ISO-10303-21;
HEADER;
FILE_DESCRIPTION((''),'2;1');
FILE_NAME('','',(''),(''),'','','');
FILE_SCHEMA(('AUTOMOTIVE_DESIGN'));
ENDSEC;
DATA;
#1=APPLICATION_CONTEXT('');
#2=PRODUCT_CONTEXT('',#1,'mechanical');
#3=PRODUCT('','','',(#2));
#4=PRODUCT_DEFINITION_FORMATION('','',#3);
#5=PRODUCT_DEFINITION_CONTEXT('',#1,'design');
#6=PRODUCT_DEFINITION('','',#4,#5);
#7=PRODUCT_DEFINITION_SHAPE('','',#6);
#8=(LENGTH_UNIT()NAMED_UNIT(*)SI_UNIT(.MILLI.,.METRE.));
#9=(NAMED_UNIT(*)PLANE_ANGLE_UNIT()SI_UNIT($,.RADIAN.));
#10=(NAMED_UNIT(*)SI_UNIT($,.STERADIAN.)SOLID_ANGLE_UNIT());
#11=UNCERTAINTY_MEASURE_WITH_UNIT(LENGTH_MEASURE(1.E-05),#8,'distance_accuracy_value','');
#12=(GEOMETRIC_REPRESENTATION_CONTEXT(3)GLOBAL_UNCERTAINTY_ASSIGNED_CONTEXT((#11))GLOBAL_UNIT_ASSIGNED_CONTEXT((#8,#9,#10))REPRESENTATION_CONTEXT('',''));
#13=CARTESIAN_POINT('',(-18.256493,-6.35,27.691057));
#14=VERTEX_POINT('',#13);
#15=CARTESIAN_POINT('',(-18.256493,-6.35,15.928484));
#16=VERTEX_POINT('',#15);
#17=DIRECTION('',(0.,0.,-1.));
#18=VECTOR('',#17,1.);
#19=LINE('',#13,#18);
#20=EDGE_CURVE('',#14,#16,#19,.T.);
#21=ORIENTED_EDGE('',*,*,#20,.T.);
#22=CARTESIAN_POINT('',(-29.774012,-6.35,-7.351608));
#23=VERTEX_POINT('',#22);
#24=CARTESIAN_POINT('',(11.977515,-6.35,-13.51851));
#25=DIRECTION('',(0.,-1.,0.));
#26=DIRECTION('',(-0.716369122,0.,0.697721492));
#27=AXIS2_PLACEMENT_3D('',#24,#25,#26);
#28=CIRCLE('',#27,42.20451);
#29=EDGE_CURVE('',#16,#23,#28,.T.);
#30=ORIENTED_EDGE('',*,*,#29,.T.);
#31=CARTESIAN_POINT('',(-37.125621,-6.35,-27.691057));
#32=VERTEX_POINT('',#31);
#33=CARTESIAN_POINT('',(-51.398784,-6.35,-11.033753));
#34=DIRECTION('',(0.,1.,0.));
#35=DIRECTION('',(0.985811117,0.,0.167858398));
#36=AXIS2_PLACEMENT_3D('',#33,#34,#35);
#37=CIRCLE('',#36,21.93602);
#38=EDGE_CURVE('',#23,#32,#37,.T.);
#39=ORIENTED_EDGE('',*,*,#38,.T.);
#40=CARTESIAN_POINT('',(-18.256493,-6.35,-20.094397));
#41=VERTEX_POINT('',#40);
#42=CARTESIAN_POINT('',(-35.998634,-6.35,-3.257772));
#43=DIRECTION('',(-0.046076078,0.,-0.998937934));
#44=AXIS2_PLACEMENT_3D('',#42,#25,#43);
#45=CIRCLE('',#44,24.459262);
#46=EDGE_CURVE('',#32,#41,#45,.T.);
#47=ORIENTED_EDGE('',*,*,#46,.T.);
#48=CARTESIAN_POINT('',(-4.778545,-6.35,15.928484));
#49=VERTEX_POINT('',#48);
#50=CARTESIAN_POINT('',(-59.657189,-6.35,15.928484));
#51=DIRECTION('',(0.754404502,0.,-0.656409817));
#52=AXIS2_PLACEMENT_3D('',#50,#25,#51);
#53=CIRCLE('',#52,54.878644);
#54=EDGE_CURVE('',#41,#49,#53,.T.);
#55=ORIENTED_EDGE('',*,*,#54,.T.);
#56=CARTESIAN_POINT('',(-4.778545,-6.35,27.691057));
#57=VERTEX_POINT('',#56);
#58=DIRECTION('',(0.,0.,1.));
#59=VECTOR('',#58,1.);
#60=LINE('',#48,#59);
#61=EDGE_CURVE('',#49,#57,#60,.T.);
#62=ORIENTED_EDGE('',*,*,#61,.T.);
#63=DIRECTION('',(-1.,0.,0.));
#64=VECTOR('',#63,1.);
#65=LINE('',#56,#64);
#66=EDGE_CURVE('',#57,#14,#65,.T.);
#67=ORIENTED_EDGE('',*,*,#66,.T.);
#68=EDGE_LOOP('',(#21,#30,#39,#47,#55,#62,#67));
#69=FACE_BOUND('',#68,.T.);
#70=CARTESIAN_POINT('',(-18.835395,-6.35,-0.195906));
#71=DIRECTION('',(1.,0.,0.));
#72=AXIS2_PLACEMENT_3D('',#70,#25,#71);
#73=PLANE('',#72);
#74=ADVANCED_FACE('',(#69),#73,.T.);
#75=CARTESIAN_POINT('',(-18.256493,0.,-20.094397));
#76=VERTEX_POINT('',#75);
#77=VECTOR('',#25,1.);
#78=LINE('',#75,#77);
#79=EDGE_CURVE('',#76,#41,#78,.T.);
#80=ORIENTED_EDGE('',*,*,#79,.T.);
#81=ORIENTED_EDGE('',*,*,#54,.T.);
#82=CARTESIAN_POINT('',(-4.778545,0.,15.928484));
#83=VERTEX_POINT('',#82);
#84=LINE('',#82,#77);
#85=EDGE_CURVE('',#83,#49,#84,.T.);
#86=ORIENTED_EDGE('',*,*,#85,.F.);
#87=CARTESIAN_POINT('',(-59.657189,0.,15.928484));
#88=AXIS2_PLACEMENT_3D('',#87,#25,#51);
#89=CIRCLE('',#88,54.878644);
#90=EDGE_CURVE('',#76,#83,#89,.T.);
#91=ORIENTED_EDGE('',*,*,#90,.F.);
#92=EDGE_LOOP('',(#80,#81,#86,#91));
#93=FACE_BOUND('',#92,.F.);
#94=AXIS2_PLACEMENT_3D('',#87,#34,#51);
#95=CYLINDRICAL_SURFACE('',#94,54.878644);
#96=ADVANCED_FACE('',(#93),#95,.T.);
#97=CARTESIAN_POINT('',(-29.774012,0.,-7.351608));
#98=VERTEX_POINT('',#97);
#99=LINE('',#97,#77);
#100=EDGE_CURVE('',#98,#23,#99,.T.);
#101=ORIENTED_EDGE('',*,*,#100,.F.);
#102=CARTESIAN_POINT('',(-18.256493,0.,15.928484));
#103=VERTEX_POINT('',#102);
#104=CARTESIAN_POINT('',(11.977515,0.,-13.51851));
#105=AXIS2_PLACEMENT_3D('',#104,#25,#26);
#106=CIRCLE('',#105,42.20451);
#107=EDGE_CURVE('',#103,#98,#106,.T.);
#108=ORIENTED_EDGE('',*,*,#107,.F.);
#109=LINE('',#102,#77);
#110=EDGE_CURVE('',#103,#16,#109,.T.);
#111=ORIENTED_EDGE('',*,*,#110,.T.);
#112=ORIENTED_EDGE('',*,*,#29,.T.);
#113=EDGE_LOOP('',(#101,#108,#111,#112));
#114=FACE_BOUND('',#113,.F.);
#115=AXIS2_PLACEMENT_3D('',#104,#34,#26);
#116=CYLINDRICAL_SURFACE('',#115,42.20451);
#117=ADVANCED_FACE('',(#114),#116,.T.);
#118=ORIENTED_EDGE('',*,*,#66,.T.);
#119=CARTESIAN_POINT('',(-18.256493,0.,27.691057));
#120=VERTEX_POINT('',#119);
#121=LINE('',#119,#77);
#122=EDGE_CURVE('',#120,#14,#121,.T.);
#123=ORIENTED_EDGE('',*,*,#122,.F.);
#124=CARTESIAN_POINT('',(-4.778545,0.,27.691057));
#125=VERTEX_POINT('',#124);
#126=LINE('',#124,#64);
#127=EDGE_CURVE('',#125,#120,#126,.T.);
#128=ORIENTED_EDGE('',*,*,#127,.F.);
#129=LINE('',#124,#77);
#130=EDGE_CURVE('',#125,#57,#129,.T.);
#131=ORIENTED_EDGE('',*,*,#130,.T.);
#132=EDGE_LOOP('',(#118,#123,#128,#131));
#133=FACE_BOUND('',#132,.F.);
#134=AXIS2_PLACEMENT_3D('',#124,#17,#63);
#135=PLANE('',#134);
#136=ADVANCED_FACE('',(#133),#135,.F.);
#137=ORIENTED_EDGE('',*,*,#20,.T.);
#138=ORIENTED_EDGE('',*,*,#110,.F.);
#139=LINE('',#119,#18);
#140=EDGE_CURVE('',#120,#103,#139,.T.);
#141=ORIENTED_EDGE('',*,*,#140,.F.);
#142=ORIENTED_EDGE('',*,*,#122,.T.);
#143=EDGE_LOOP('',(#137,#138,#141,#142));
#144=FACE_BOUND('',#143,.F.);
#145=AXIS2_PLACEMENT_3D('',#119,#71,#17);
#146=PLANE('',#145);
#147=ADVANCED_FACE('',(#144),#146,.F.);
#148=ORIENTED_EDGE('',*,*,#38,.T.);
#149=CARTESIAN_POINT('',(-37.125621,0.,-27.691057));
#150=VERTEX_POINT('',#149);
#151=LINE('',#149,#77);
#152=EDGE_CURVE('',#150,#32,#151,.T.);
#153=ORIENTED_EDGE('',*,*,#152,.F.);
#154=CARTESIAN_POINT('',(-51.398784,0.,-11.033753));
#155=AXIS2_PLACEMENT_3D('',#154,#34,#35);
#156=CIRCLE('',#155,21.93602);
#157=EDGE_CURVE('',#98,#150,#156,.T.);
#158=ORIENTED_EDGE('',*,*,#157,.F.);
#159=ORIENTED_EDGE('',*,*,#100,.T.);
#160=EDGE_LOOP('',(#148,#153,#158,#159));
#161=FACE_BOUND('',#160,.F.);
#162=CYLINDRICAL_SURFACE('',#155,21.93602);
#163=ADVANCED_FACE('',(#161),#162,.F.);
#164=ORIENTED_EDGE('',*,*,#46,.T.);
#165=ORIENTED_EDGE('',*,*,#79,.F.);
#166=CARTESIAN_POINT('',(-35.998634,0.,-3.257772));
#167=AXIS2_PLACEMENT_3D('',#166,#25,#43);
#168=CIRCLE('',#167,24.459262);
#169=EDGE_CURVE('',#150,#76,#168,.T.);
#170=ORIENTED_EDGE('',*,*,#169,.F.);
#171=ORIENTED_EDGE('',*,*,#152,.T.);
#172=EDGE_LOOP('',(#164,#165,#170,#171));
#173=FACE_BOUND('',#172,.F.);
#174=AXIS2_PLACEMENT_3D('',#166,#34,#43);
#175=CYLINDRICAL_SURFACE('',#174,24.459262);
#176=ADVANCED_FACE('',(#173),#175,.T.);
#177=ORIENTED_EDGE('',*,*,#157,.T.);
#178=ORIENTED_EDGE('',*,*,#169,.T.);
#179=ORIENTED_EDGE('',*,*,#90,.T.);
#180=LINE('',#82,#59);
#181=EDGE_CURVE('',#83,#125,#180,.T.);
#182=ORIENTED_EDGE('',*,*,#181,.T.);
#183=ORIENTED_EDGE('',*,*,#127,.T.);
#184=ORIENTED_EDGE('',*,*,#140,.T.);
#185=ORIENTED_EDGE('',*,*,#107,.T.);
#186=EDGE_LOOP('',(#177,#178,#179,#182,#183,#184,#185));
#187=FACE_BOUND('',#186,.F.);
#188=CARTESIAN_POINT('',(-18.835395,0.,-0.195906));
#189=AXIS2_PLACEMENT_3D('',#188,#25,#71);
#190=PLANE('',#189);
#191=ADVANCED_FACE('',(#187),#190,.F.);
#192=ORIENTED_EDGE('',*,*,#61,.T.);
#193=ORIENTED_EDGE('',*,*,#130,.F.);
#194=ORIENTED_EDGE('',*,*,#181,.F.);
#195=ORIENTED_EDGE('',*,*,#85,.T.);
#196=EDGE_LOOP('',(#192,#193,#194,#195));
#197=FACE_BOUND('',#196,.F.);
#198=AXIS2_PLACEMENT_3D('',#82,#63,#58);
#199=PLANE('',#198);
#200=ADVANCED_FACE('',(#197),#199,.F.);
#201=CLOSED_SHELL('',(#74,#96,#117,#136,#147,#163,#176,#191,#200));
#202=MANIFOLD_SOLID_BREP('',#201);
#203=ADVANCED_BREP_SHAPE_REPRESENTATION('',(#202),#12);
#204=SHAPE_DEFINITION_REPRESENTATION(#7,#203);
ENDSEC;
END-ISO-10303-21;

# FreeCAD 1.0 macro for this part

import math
import FreeCAD as App
import Part
import Sketcher
Q = App.Units.Quantity

doc = App.newDocument("Part")
body = doc.addObject("PartDesign::Body", "Body")

sketch1 = body.newObject("Sketcher::SketchObject", "Sketch")
sketch1.AttachmentSupport = (doc.getObject("XZ_Plane"), [""])
sketch1.MapMode = "FlatFace"
sketch1.addGeometry(Part.LineSegment(App.Vector(-5, 28, 0), App.Vector(-18, 28, 0)), False)
sketch1.addGeometry(Part.LineSegment(App.Vector(-18, 28, 0), App.Vector(-18, 16, 0)), False)
sketch1.addGeometry(Part.ArcOfCircle(Part.Circle(App.Vector(12, -14, 0), App.Vector(0, 0, 1), 42), math.radians(136), math.radians(172)), False)
sketch1.addGeometry(Part.ArcOfCircle(Part.Circle(App.Vector(-51, -11, 0), App.Vector(0, 0, 1), 22), math.radians(-49), math.radians(10)), False)
sketch1.addGeometry(Part.ArcOfCircle(Part.Circle(App.Vector(-36, -3, 0), App.Vector(0, 0, 1), 24), math.radians(-93), math.radians(-43)), False)
sketch1.addGeometry(Part.ArcOfCircle(Part.Circle(App.Vector(-60, 16, 0), App.Vector(0, 0, 1), 55), math.radians(-41), math.radians(0)), False)
sketch1.addGeometry(Part.LineSegment(App.Vector(-5, 16, 0), App.Vector(-5, 28, 0)), False)
sketch1.addConstraint(Sketcher.Constraint("Coincident", 0, 2, 1, 1))
sketch1.addConstraint(Sketcher.Constraint("Coincident", 1, 2, 2, 1))
sketch1.addConstraint(Sketcher.Constraint("Coincident", 2, 2, 3, 2))
sketch1.addConstraint(Sketcher.Constraint("Coincident", 3, 1, 4, 1))
sketch1.addConstraint(Sketcher.Constraint("Coincident", 4, 2, 5, 1))
sketch1.addConstraint(Sketcher.Constraint("Tangent", 5, 2, 6, 1))
sketch1.addConstraint(Sketcher.Constraint("Coincident", 6, 2, 0, 1))
sketch1.addConstraint(Sketcher.Constraint("Horizontal", 0))
sketch1.addConstraint(Sketcher.Constraint("Vertical", 1))
sketch1.addConstraint(Sketcher.Constraint("Vertical", 6))
sketch1.addConstraint(Sketcher.Constraint("Horizontal", 5, 3, 1, 2))
sketch1.addConstraint(Sketcher.Constraint("Vertical", 1, 2, 4, 2))
sketch1.addConstraint(Sketcher.Constraint("Radius", 2, 42.20451))
sketch1.addConstraint(Sketcher.Constraint("Radius", 3, 21.93602))
sketch1.addConstraint(Sketcher.Constraint("Radius", 4, 24.459262))
sketch1.addConstraint(Sketcher.Constraint("Radius", 5, 54.878644))
sketch1.addConstraint(Sketcher.Constraint("DistanceX", 3, 3, 2, 3, 63.376299))
sketch1.addConstraint(Sketcher.Constraint("DistanceX", 0, 2, 0, 1, 13.477948))
sketch1.addConstraint(Sketcher.Constraint("DistanceY", 1, 2, 1, 1, 11.762573))
sketch1.addConstraint(Sketcher.Constraint("DistanceY", 2, 3, -1, 1, 13.51851))
sketch1.addConstraint(Sketcher.Constraint("DistanceX", 5, 3, -1, 1, 59.657189))
sketch1.addConstraint(Sketcher.Constraint("DistanceX", 2, 2, -1, 1, 29.774012))
sketch1.addConstraint(Sketcher.Constraint("DistanceY", 2, 2, -1, 1, 7.351608))
sketch1.addConstraint(Sketcher.Constraint("DistanceX", 3, 1, -1, 1, 37.125621))
pad1 = body.newObject("PartDesign::Pad", "Pad")
pad1.Profile = sketch1
pad1.Length = Q("0.25 in")

doc.recompute()
